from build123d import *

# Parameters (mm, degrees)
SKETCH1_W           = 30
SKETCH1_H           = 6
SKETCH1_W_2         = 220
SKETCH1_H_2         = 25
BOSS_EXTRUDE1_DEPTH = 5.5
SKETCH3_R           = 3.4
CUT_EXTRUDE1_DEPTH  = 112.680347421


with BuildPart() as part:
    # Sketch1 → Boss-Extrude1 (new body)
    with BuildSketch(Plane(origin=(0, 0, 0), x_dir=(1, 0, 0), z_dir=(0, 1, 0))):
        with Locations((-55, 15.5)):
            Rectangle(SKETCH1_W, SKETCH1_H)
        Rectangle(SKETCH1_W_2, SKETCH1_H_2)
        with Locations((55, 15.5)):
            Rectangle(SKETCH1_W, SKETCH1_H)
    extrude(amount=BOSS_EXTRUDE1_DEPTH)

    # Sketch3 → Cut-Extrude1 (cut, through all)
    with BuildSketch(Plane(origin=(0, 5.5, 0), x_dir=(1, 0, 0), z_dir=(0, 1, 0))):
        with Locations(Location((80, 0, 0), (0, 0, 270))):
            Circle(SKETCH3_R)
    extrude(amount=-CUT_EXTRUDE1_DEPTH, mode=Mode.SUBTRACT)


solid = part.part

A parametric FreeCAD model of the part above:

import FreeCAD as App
import Part
import Sketcher


def add_polygon(sketch, points):
    """Adds a closed chain of lines whose ends are joined by coincident constraints."""
    first, n = sketch.GeometryCount, len(points)
    for a, b in zip(points, points[1:] + points[:1]):
        sketch.addGeometry(Part.LineSegment(App.Vector(*a, 0), App.Vector(*b, 0)), False)
    for i in range(n):
        sketch.addConstraint(Sketcher.Constraint("Coincident", first + i, 2, first + (i + 1) % n, 1))

doc = App.newDocument("Part")
body = doc.addObject("PartDesign::Body", "Body")

# Sketch on XZ plane
sketch1 = body.newObject("Sketcher::SketchObject", "Sketch")
sketch1.AttachmentSupport = (doc.getObject("XZ_Plane"), [""])
sketch1.MapMode = "FlatFace"
add_polygon(sketch1, [(-70, -18), (-70, -12), (-110, -12), (-110, 12), (110, 12), (110, -12), (70, -12), (70, -18), (40, -18), (40, -12), (-40, -12), (-40, -18)])  # lines 0-11
sketch1.addConstraint(Sketcher.Constraint("Vertical", 0))
sketch1.addConstraint(Sketcher.Constraint("Horizontal", 1))
sketch1.addConstraint(Sketcher.Constraint("Vertical", 2))
sketch1.addConstraint(Sketcher.Constraint("Horizontal", 3))
sketch1.addConstraint(Sketcher.Constraint("Vertical", 4))
sketch1.addConstraint(Sketcher.Constraint("Horizontal", 5))
sketch1.addConstraint(Sketcher.Constraint("Vertical", 6))
sketch1.addConstraint(Sketcher.Constraint("Horizontal", 7))
sketch1.addConstraint(Sketcher.Constraint("Vertical", 8))
sketch1.addConstraint(Sketcher.Constraint("Horizontal", 9))
sketch1.addConstraint(Sketcher.Constraint("Vertical", 10))
sketch1.addConstraint(Sketcher.Constraint("Horizontal", 11))
sketch1.addConstraint(Sketcher.Constraint("Symmetric", 1, 2, 3, 2, -1, 1))
sketch1.addConstraint(Sketcher.Constraint("Symmetric", 0, 2, 5, 2, -2))
sketch1.addConstraint(Sketcher.Constraint("Symmetric", 7, 2, 10, 2, -2))
sketch1.addConstraint(Sketcher.Constraint("Horizontal", 5, 2, 8, 2))
sketch1.addConstraint(Sketcher.Constraint("DistanceX", 1, 2, 1, 1, 40.0))
sketch1.addConstraint(Sketcher.Constraint("DistanceX", 3, 1, 3, 2, 220.0))
sketch1.addConstraint(Sketcher.Constraint("DistanceX", 7, 2, 7, 1, 30.0))
sketch1.addConstraint(Sketcher.Constraint("DistanceY", 0, 1, 0, 2, 6.0))
sketch1.addConstraint(Sketcher.Constraint("DistanceY", 2, 1, 2, 2, 25.0))
pad1 = body.newObject("PartDesign::Pad", "Pad")
pad1.Profile = sketch1
pad1.Length = 5.5
pad1.Reversed = True

# Sketch on XZ plane
sketch2 = body.newObject("Sketcher::SketchObject", "Sketch001")
sketch2.AttachmentSupport = (doc.getObject("XZ_Plane"), [""])
sketch2.MapMode = "FlatFace"
sketch2.AttachmentOffset = App.Placement(App.Vector(0, 0, -5.5), App.Rotation())
sketch2.addGeometry(Part.Circle(App.Vector(80, 0, 0), App.Vector(0, 0, 1), 3.4), False)
sketch2.addConstraint(Sketcher.Constraint("PointOnObject", 0, 3, -1))
sketch2.addConstraint(Sketcher.Constraint("Diameter", 0, 6.8))
sketch2.addConstraint(Sketcher.Constraint("DistanceX", -1, 1, 0, 3, 80.0))
pocket1 = body.newObject("PartDesign::Pocket", "Pocket")
pocket1.Profile = sketch2
pocket1.Type = "ThroughAll"
pocket1.Reversed = True

doc.recompute()
